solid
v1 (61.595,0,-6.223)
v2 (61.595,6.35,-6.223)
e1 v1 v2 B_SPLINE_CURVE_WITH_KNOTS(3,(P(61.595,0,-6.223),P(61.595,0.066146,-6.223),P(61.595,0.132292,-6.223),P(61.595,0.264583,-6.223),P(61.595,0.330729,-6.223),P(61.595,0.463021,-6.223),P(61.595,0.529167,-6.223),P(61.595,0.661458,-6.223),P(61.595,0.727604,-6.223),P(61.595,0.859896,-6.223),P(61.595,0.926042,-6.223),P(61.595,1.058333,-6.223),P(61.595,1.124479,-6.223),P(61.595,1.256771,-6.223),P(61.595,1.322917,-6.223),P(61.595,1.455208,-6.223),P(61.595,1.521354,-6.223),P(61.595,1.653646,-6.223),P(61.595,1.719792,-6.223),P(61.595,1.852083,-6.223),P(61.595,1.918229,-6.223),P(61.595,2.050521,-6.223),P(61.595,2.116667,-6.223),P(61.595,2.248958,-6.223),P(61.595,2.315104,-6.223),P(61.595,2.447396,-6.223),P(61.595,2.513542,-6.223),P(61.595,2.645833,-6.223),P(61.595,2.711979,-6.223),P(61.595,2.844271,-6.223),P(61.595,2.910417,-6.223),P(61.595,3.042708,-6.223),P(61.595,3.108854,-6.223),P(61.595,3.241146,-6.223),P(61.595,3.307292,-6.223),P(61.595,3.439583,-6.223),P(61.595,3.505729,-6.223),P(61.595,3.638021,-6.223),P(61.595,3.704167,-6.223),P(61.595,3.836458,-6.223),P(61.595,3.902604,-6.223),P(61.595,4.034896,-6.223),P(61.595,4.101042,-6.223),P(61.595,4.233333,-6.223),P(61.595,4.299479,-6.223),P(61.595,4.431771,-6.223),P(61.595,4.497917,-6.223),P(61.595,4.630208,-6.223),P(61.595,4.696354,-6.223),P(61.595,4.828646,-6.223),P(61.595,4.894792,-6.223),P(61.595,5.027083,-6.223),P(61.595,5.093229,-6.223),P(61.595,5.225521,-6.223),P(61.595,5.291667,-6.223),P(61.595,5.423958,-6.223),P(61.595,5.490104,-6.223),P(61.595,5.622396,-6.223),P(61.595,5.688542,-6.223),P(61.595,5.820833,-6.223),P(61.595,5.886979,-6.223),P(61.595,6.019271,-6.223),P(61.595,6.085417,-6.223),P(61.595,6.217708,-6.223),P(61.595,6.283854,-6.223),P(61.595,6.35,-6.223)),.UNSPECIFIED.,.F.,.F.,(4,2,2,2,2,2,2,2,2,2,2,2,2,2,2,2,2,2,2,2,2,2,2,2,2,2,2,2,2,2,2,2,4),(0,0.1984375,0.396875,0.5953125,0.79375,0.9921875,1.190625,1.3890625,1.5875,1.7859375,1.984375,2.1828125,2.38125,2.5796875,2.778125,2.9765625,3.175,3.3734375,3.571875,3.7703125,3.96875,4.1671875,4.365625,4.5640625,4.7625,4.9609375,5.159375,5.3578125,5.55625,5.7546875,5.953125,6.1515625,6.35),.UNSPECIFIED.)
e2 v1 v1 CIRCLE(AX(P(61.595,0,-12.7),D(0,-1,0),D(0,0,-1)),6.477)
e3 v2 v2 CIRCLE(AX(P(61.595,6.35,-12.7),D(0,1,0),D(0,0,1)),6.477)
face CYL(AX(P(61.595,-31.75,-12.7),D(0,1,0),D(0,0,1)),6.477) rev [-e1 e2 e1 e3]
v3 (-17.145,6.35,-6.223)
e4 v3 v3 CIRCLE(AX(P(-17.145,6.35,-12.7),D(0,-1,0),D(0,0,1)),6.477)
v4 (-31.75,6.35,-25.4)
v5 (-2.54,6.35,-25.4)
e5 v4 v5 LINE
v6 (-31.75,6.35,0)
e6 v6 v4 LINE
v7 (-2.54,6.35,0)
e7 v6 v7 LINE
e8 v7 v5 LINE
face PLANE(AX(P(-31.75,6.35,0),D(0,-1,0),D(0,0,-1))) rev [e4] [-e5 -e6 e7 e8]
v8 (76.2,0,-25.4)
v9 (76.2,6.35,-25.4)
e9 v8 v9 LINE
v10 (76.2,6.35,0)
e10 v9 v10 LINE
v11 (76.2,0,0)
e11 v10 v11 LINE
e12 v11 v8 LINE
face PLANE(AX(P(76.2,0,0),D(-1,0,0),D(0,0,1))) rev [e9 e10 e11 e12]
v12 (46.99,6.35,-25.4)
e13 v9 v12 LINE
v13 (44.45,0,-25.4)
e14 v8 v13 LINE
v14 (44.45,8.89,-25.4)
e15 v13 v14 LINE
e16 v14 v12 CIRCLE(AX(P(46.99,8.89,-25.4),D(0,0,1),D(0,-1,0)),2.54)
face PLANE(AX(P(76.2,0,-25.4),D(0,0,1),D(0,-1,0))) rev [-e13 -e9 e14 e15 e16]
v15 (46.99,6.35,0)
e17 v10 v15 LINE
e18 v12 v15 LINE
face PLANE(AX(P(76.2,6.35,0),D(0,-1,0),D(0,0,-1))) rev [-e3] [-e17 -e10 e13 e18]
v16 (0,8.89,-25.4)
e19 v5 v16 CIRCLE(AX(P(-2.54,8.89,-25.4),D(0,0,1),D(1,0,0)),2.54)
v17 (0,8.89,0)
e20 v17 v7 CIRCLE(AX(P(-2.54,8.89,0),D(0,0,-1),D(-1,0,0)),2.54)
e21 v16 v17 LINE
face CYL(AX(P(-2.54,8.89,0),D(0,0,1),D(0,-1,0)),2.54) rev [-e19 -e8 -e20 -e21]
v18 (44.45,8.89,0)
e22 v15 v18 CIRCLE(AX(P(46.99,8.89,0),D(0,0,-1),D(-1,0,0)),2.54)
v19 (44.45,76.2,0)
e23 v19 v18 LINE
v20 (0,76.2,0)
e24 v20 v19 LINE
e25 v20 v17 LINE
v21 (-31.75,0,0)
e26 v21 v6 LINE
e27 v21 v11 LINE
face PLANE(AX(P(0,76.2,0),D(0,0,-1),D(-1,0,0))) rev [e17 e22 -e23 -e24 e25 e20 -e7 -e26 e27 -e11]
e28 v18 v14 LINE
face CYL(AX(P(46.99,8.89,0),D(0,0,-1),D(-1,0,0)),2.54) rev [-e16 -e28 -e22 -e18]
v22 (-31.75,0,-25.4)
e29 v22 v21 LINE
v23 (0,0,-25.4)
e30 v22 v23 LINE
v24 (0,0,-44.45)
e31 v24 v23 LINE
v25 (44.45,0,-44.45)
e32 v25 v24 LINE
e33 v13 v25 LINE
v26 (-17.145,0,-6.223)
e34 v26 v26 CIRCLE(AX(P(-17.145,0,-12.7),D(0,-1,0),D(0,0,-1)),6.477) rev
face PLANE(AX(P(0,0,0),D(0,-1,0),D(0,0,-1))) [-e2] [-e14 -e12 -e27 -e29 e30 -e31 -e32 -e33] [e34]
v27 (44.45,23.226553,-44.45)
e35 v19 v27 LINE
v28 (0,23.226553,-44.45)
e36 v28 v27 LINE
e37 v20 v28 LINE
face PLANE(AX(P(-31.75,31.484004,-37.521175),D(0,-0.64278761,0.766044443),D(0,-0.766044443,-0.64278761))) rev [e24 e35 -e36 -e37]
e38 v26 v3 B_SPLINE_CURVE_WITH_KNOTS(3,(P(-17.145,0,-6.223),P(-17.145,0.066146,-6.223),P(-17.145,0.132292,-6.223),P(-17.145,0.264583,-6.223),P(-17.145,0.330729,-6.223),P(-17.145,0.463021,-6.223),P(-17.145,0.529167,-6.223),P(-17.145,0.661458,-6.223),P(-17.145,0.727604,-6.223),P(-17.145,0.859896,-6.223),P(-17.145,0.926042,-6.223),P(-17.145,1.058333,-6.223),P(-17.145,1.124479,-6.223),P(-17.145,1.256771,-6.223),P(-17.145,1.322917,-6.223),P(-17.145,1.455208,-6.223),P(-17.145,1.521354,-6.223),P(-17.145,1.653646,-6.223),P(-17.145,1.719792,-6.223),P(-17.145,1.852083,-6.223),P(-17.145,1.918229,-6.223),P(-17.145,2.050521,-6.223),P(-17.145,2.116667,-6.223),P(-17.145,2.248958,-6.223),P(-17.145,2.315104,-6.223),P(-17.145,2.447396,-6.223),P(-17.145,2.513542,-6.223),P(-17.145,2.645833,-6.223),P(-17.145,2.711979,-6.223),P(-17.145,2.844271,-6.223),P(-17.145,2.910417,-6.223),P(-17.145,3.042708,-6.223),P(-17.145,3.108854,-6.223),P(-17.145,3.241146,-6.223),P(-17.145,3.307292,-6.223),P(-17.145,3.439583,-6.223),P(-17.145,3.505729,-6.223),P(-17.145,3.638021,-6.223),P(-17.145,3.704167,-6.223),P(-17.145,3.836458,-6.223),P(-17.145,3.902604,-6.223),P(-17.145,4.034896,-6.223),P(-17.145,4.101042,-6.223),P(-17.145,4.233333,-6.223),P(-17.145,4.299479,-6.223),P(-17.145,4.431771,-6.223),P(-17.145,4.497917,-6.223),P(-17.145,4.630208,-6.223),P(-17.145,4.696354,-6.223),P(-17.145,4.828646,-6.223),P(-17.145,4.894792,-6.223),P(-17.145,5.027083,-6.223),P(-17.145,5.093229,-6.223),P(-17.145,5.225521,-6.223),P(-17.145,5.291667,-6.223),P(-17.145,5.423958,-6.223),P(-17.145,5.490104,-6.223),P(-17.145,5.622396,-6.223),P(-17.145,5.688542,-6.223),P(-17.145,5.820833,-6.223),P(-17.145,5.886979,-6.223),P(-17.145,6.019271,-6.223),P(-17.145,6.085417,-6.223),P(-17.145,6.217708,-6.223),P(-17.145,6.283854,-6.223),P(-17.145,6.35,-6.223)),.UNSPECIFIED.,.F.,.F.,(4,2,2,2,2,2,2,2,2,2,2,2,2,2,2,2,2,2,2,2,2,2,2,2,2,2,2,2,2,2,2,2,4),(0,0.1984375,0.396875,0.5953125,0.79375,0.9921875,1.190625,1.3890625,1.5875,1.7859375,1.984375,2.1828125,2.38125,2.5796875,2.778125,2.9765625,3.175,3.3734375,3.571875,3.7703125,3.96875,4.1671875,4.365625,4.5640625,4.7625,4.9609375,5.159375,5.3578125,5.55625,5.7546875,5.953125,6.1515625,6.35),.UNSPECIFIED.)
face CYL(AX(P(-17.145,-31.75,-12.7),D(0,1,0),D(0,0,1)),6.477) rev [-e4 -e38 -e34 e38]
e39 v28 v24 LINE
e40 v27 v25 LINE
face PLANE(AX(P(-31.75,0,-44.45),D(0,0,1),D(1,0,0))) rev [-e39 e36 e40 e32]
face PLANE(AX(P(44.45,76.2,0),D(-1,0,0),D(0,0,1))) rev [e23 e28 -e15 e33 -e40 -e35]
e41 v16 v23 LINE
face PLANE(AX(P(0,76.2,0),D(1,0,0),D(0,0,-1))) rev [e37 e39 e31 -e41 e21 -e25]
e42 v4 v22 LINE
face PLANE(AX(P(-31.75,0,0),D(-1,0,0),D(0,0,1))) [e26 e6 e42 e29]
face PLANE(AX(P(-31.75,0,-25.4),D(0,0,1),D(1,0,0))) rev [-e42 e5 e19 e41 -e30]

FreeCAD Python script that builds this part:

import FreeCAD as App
import Part
import Sketcher

V = App.Vector
Q = App.Units.Quantity


def edges_at(feature, points):
    """Names of the edges that pass closest to the given points."""
    edges = feature.Shape.Edges
    near = lambda p: min(range(len(edges)), key=lambda i: edges[i].distToShape(Part.Vertex(*p))[0])
    return sorted({f"Edge{near(p) + 1}" for p in points})

doc = App.newDocument("Part")
body = doc.addObject("PartDesign::Body", "Body")

sketch1 = doc.addObject("Sketcher::SketchObject", "Sketch")
body.addObject(sketch1)
sketch1.AttachmentSupport = (doc.XZ_Plane, [""])
sketch1.MapMode = "FlatFace"
sketch1.addGeometry([
    Part.LineSegment(V(0, -89, 0), V(0, 0, 0)),
    Part.LineSegment(V(0, 0, 0), V(44, 0, 0)),
    Part.LineSegment(V(44, 0, 0), V(44, -89, 0)),
    Part.LineSegment(V(44, -89, 0), V(0, -89, 0)),
], False)
sketch1.addConstraint([
    Sketcher.Constraint("Coincident", 0, 2, 1, 1),
    Sketcher.Constraint("Coincident", 1, 2, 2, 1),
    Sketcher.Constraint("Coincident", 2, 2, 3, 1),
    Sketcher.Constraint("Coincident", 3, 2, 0, 1),
    Sketcher.Constraint("Vertical", 0),
    Sketcher.Constraint("Horizontal", 1),
    Sketcher.Constraint("Vertical", 2),
    Sketcher.Constraint("Horizontal", 3),
    Sketcher.Constraint("Coincident", 0, 2, -1, 1),
    Sketcher.Constraint("DistanceY", 0, 1, 0, 2, Q("3.5 in")),
    Sketcher.Constraint("DistanceX", 1, 1, 1, 2, Q("1.75 in")),
])
pad1 = doc.addObject("PartDesign::Pad", "Pad")
body.addObject(pad1)
pad1.Profile = sketch1
pad1.Length = Q("3 in")
pad1.Reversed = True

sketch2 = doc.addObject("Sketcher::SketchObject", "Sketch001")
body.addObject(sketch2)
sketch2.AttachmentSupport = (doc.YZ_Plane, [""])
sketch2.MapMode = "FlatFace"
sketch2.AttachmentOffset = App.Placement(V(0, 0, 1.75 * 25.4), App.Rotation())
sketch2.addGeometry([
    Part.LineSegment(V(23, -44, 0), V(0, -44, 0)),
    Part.LineSegment(V(0, -44, 0), V(0, -89, 0)),
    Part.LineSegment(V(0, -89, 0), V(76, -89, 0)),
    Part.LineSegment(V(76, -89, 0), V(76, 0, 0)),
    Part.LineSegment(V(76, 0, 0), V(23, -44, 0)),
], False)
sketch2.addConstraint([
    Sketcher.Constraint("Coincident", 0, 2, 1, 1),
    Sketcher.Constraint("Coincident", 1, 2, 2, 1),
    Sketcher.Constraint("Coincident", 2, 2, 3, 1),
    Sketcher.Constraint("Coincident", 3, 2, 4, 1),
    Sketcher.Constraint("Coincident", 4, 2, 0, 1),
    Sketcher.Constraint("Horizontal", 0),
    Sketcher.Constraint("Vertical", 1),
    Sketcher.Constraint("Horizontal", 2),
    Sketcher.Constraint("Vertical", 3),
    Sketcher.Constraint("PointOnObject", 0, 2, -2),
    Sketcher.Constraint("PointOnObject", 3, 2, -1),
    Sketcher.Constraint("DistanceX", 2, 1, 2, 2, Q("3 in")),
    Sketcher.Constraint("DistanceY", 3, 1, 3, 2, Q("3.5 in")),
    Sketcher.Constraint("Angle", 4, Q("-140 deg")),
    Sketcher.Constraint("DistanceY", 1, 2, 1, 1, Q("1.75 in")),
])
pocket1 = doc.addObject("PartDesign::Pocket", "Pocket")
body.addObject(pocket1)
pocket1.Profile = sketch2
pocket1.Length = Q("3 in")

sketch3 = doc.addObject("Sketcher::SketchObject", "Sketch002")
body.addObject(sketch3)
sketch3.AttachmentSupport = (doc.YZ_Plane, [""])
sketch3.MapMode = "FlatFace"
sketch3.AttachmentOffset = App.Placement(V(0, 0, 1.75 * 25.4), App.Rotation())
sketch3.addGeometry([
    Part.LineSegment(V(6, 0, 0), V(0, 0, 0)),
    Part.LineSegment(V(0, 0, 0), V(0, -25, 0)),
    Part.LineSegment(V(0, -25, 0), V(6, -25, 0)),
    Part.LineSegment(V(6, -25, 0), V(6, 0, 0)),
], False)
sketch3.addConstraint([
    Sketcher.Constraint("Coincident", 0, 2, 1, 1),
    Sketcher.Constraint("Coincident", 1, 2, 2, 1),
    Sketcher.Constraint("Coincident", 2, 2, 3, 1),
    Sketcher.Constraint("Coincident", 3, 2, 0, 1),
    Sketcher.Constraint("Horizontal", 0),
    Sketcher.Constraint("Vertical", 1),
    Sketcher.Constraint("Horizontal", 2),
    Sketcher.Constraint("Vertical", 3),
    Sketcher.Constraint("Coincident", 0, 2, -1, 1),
    Sketcher.Constraint("DistanceY", 1, 2, 1, 1, Q("1 in")),
    Sketcher.Constraint("DistanceX", 0, 2, 0, 1, Q("0.25 in")),
])
pad2 = doc.addObject("PartDesign::Pad", "Pad001")
body.addObject(pad2)
pad2.Profile = sketch3
pad2.Length = Q("1.25 in")
doc.recompute()

fillet = doc.addObject("PartDesign::Fillet", "Fillet")
body.addObject(fillet)
fillet.Base = (pad2, edges_at(pad2, [(44.45, 6.35, -12.7)]))
fillet.Radius = Q("0.1 in")

sketch4 = doc.addObject("Sketcher::SketchObject", "Sketch003")
body.addObject(sketch4)
sketch4.AttachmentSupport = (doc.XZ_Plane, [""])
sketch4.MapMode = "FlatFace"
sketch4.AttachmentOffset = App.Placement(V(0, 0, -0.25 * 25.4), App.Rotation())
sketch4.addGeometry(Part.Circle(V(62, -13, 0), V(0, 0, 1), 6), False)
sketch4.addConstraint([
    Sketcher.Constraint("Diameter", 0, Q("0.51 in")),
    Sketcher.Constraint("DistanceY", 0, 3, -1, 1, Q("0.5 in")),
    Sketcher.Constraint("DistanceX", -1, 1, 0, 3, Q("2.425 in")),
])
pocket2 = doc.addObject("PartDesign::Pocket", "Pocket001")
body.addObject(pocket2)
pocket2.Profile = sketch4
pocket2.Length = Q("1.5 in")
pocket2.Reversed = True

sketch5 = doc.addObject("Sketcher::SketchObject", "Sketch004")
body.addObject(sketch5)
sketch5.AttachmentSupport = (doc.YZ_Plane, [""])
sketch5.MapMode = "FlatFace"
sketch5.addGeometry([
    Part.LineSegment(V(6, -25, 0), V(0, -25, 0)),
    Part.LineSegment(V(0, -25, 0), V(0, 0, 0)),
    Part.LineSegment(V(0, 0, 0), V(6, 0, 0)),
    Part.LineSegment(V(6, 0, 0), V(6, -25, 0)),
], False)
sketch5.addConstraint([
    Sketcher.Constraint("Coincident", 0, 2, 1, 1),
    Sketcher.Constraint("Coincident", 1, 2, 2, 1),
    Sketcher.Constraint("Coincident", 2, 2, 3, 1),
    Sketcher.Constraint("Coincident", 3, 2, 0, 1),
    Sketcher.Constraint("Horizontal", 0),
    Sketcher.Constraint("Vertical", 1),
    Sketcher.Constraint("Horizontal", 2),
    Sketcher.Constraint("Vertical", 3),
    Sketcher.Constraint("Coincident", 1, 2, -1, 1),
    Sketcher.Constraint("DistanceY", 1, 1, 1, 2, Q("1 in")),
    Sketcher.Constraint("DistanceX", 0, 2, 0, 1, Q("0.25 in")),
])
pad3 = doc.addObject("PartDesign::Pad", "Pad002")
body.addObject(pad3)
pad3.Profile = sketch5
pad3.Length = Q("1.25 in")
pad3.Reversed = True
doc.recompute()

datumplane = doc.addObject("PartDesign::Plane", "DatumPlane")
body.addObject(datumplane)
datumplane.AttachmentSupport = (doc.YZ_Plane, [""])
datumplane.MapMode = "FlatFace"
datumplane.AttachmentOffset = App.Placement(V(0, 0, 0.875 * 25.4), App.Rotation())
mirrored = doc.addObject("PartDesign::Mirrored", "Mirrored")
body.addObject(mirrored)
mirrored.Originals = [pocket2]
mirrored.MirrorPlane = (datumplane, [""])
body.Tip = mirrored
doc.recompute()

fillet2 = doc.addObject("PartDesign::Fillet", "Fillet001")
body.addObject(fillet2)
fillet2.Base = (mirrored, edges_at(mirrored, [(0, 6.35, -12.7)]))
fillet2.Radius = Q("0.1 in")

doc.recompute()
